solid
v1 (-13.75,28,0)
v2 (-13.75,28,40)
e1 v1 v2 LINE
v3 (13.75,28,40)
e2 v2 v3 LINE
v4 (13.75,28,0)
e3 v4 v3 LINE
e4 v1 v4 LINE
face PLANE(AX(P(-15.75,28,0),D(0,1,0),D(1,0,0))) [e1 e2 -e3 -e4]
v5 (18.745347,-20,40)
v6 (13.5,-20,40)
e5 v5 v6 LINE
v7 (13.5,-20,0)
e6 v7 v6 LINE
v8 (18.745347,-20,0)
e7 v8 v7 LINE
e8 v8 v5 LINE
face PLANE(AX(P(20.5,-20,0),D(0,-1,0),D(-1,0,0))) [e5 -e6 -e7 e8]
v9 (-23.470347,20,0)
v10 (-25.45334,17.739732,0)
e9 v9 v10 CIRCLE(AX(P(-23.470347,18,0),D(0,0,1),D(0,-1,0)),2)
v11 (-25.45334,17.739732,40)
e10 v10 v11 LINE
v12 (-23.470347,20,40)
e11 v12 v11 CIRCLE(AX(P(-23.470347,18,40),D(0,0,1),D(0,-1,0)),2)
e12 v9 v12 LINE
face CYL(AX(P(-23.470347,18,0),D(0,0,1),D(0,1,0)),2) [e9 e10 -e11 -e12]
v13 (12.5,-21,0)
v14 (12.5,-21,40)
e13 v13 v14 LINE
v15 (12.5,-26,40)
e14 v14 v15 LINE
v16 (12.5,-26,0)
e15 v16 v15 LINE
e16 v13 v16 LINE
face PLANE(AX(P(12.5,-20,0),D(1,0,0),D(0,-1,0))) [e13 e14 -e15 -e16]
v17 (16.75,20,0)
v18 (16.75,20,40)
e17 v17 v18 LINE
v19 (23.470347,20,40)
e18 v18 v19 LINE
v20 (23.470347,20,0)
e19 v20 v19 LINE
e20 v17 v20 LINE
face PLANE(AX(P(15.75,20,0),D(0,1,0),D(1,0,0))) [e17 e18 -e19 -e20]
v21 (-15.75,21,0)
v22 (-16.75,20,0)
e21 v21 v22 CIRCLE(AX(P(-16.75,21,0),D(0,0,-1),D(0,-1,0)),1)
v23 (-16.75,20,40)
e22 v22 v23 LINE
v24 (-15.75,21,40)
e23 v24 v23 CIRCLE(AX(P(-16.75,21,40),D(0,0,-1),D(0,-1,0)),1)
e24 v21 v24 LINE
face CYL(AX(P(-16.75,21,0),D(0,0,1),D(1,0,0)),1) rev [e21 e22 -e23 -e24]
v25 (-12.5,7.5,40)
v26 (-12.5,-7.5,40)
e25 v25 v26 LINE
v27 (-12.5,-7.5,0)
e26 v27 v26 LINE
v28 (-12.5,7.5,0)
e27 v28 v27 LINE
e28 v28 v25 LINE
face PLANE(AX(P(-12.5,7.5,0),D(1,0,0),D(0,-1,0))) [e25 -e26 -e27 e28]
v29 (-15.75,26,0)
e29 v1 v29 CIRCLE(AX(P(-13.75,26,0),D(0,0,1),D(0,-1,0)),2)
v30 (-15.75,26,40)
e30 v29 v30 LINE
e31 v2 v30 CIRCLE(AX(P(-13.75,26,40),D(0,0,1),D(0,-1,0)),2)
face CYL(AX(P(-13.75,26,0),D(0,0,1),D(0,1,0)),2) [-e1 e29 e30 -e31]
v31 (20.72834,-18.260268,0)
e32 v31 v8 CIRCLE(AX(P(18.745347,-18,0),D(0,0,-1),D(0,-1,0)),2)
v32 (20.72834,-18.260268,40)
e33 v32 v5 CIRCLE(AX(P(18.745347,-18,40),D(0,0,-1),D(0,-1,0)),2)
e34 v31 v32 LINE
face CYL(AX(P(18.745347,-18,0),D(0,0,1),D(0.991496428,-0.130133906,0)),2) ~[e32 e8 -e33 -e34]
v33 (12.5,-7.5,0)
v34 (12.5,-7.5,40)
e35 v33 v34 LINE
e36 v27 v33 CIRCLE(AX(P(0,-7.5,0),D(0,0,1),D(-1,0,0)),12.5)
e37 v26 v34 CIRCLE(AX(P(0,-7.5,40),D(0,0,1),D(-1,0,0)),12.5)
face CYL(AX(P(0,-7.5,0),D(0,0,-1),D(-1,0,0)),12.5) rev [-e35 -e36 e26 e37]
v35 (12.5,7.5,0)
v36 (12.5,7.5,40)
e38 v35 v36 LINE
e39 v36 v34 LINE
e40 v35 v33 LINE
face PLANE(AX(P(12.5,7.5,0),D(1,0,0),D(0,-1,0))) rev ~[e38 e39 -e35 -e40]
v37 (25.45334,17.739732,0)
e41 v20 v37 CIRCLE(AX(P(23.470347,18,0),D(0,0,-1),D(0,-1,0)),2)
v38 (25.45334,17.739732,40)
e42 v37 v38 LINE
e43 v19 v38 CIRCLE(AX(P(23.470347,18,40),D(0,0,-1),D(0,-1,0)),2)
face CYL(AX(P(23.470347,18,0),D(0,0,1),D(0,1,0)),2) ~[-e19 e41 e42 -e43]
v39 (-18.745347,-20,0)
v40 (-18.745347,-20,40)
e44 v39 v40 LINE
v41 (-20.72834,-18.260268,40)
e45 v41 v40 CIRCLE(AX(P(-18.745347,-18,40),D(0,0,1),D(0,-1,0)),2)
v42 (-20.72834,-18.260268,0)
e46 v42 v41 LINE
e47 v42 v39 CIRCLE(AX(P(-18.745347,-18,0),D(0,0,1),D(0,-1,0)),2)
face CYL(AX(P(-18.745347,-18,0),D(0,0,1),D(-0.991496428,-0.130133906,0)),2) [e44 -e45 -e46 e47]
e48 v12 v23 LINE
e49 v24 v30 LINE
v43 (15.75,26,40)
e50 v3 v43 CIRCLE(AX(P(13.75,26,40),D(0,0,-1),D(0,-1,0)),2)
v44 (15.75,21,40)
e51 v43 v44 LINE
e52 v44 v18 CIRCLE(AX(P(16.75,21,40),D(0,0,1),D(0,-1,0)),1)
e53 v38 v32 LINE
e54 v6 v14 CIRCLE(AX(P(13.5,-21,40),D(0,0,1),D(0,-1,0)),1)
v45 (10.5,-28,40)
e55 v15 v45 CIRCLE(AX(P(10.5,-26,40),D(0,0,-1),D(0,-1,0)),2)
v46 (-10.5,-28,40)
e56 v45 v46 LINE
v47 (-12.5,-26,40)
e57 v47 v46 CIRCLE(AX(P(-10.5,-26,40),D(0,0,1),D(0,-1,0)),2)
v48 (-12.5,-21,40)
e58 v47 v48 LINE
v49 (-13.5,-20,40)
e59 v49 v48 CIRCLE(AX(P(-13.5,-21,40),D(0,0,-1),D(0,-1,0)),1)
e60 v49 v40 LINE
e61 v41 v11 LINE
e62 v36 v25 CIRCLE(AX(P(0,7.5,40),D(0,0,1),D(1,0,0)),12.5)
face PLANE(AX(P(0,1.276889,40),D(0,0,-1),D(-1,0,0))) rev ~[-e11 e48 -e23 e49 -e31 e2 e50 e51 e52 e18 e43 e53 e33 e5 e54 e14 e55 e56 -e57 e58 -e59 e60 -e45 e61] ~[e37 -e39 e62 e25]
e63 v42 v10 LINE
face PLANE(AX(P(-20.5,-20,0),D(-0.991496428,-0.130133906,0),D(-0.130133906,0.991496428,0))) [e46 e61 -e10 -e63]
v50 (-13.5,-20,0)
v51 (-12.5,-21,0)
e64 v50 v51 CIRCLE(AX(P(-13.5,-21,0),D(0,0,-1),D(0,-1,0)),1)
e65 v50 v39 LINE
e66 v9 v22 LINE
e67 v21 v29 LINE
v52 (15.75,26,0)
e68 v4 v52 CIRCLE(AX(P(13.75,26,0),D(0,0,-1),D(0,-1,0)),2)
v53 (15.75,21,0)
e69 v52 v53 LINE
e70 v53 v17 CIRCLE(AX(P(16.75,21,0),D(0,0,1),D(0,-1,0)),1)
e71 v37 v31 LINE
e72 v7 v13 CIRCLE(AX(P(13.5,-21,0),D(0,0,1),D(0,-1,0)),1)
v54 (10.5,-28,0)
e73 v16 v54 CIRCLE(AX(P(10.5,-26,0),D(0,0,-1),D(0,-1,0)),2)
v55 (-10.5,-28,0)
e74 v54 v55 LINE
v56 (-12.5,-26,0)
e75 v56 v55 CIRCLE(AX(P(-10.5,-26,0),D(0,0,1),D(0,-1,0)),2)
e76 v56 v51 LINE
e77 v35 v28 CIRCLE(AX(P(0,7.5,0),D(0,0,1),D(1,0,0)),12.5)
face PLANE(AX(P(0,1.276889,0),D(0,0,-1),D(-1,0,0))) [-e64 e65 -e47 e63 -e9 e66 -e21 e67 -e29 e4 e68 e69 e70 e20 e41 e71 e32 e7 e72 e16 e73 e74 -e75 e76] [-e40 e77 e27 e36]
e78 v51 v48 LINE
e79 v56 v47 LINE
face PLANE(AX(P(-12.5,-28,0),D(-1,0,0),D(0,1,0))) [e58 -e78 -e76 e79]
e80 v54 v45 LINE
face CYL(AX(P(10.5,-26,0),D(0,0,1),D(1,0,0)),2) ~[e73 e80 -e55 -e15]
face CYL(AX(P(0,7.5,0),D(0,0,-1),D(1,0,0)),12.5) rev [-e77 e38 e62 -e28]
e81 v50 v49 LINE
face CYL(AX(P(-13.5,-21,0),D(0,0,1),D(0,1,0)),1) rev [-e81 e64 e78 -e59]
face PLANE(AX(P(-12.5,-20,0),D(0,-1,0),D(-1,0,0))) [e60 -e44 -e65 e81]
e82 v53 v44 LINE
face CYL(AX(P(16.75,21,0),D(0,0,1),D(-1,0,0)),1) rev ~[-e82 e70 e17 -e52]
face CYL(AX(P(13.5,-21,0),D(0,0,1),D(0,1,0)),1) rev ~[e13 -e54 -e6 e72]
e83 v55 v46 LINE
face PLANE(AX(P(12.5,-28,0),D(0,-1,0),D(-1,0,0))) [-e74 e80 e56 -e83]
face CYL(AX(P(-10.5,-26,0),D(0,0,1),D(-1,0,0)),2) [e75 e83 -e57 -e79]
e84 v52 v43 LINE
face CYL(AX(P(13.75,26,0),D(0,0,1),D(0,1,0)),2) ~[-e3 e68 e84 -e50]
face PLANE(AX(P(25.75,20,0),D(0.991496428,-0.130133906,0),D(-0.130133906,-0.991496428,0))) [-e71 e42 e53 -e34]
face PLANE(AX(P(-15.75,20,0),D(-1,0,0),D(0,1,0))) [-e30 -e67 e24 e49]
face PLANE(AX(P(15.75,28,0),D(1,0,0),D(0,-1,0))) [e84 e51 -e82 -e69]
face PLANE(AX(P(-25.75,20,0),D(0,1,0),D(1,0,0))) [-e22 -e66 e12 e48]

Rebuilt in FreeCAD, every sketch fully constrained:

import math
import FreeCAD as App
import Part
import Sketcher
Q = App.Units.Quantity


def edges_at(feature, points):
    """Names of the edges that pass closest to the given points."""
    edges = feature.Shape.Edges
    near = lambda p: min(range(len(edges)), key=lambda i: edges[i].distToShape(Part.Vertex(*p))[0])
    return sorted({f"Edge{near(p) + 1}" for p in points})


def add_polygon(sketch, points):
    """Adds a closed chain of lines whose ends are joined by coincident constraints."""
    first, n = sketch.GeometryCount, len(points)
    for a, b in zip(points, points[1:] + points[:1]):
        sketch.addGeometry(Part.LineSegment(App.Vector(*a, 0), App.Vector(*b, 0)), False)
    for i in range(n):
        sketch.addConstraint(Sketcher.Constraint("Coincident", first + i, 2, first + (i + 1) % n, 1))

doc = App.newDocument("Part")
body = doc.addObject("PartDesign::Body", "Body")

# Sketch on XY plane
sketch1 = body.newObject("Sketcher::SketchObject", "Sketch")
sketch1.AttachmentSupport = (doc.getObject("XY_Plane"), [""])
sketch1.MapMode = "FlatFace"
add_polygon(sketch1, [(16, 28), (-16, 28), (-16, 20), (-26, 20), (-20, -20), (-12, -20), (-12, -28), (12, -28), (12, -20), (20, -20), (26, 20), (16, 20)])  # lines 0-11
sketch1.addGeometry(Part.LineSegment(App.Vector(12, 8, 0), App.Vector(12, -8, 0)), False)  # 12
sketch1.addGeometry(Part.ArcOfCircle(Part.Circle(App.Vector(0, -8, 0), App.Vector(0, 0, 1), 12), math.radians(180), math.radians(360)), False)  # 13
sketch1.addGeometry(Part.LineSegment(App.Vector(-12, -8, 0), App.Vector(-12, 8, 0)), False)  # 14
sketch1.addGeometry(Part.ArcOfCircle(Part.Circle(App.Vector(0, 8, 0), App.Vector(0, 0, 1), 12), math.radians(0), math.radians(180)), False)  # 15
sketch1.addConstraint([
    Sketcher.Constraint("Tangent", 12, 2, 13, 2),
    Sketcher.Constraint("Tangent", 13, 1, 14, 1),
    Sketcher.Constraint("Tangent", 14, 2, 15, 2),
    Sketcher.Constraint("Tangent", 15, 1, 12, 1),
    Sketcher.Constraint("Horizontal", 0),
    Sketcher.Constraint("Vertical", 1),
    Sketcher.Constraint("Horizontal", 2),
    Sketcher.Constraint("Horizontal", 4),
    Sketcher.Constraint("Vertical", 5),
    Sketcher.Constraint("Horizontal", 6),
    Sketcher.Constraint("Vertical", 7),
    Sketcher.Constraint("Horizontal", 8),
    Sketcher.Constraint("Horizontal", 10),
    Sketcher.Constraint("Vertical", 11),
    Sketcher.Constraint("Vertical", 12),
    Sketcher.Constraint("Vertical", 14),
    Sketcher.Constraint("Symmetric", 13, 3, 15, 3, -1, 1),
    Sketcher.Constraint("Symmetric", 4, 2, 7, 2, -2),
    Sketcher.Constraint("Symmetric", 2, 2, 9, 2, -2),
    Sketcher.Constraint("Vertical", 7, 2, 12, 2),
    Sketcher.Constraint("Equal", 4, 8),
    Sketcher.Constraint("Equal", 2, 10),
    Sketcher.Constraint("Equal", 8, 1),
    Sketcher.Constraint("Equal", 1, 5),
    Sketcher.Constraint("Radius", 13, Q("12.5 mm")),
    Sketcher.Constraint("DistanceX", 2, 2, 2, 1, Q("10 mm")),
    Sketcher.Constraint("DistanceX", 4, 1, 4, 2, Q("8 mm")),
    Sketcher.Constraint("DistanceY", 12, 2, 12, 1, Q("15 mm")),
    Sketcher.Constraint("DistanceX", 0, 2, 0, 1, Q("31.5 mm")),
    Sketcher.Constraint("DistanceY", -1, 1, 0, 2, Q("28 mm")),
    Sketcher.Constraint("DistanceY", 3, 2, -1, 1, Q("20 mm")),
])
pad1 = body.newObject("PartDesign::Pad", "Pad")
pad1.Profile = sketch1
pad1.Length = 40
doc.recompute()

fillet = body.newObject("PartDesign::Fillet", "Fillet")
fillet.Base = (pad1, edges_at(pad1, [
    (25.75, 20, 20),
    (15.75, 28, 20),
    (-15.75, 28, 20),
    (-25.75, 20, 20),
    (-20.5, -20, 20),
    (-12.5, -28, 20),
    (12.5, -28, 20),
    (20.5, -20, 20),
]))
fillet.Radius = 2
doc.recompute()

fillet2 = body.newObject("PartDesign::Fillet", "Fillet001")
fillet2.Base = (fillet, edges_at(fillet, [
    (15.75, 20, 20),
    (-15.75, 20, 20),
    (12.5, -20, 20),
    (-12.5, -20, 20),
]))
fillet2.Radius = 1

doc.recompute()
